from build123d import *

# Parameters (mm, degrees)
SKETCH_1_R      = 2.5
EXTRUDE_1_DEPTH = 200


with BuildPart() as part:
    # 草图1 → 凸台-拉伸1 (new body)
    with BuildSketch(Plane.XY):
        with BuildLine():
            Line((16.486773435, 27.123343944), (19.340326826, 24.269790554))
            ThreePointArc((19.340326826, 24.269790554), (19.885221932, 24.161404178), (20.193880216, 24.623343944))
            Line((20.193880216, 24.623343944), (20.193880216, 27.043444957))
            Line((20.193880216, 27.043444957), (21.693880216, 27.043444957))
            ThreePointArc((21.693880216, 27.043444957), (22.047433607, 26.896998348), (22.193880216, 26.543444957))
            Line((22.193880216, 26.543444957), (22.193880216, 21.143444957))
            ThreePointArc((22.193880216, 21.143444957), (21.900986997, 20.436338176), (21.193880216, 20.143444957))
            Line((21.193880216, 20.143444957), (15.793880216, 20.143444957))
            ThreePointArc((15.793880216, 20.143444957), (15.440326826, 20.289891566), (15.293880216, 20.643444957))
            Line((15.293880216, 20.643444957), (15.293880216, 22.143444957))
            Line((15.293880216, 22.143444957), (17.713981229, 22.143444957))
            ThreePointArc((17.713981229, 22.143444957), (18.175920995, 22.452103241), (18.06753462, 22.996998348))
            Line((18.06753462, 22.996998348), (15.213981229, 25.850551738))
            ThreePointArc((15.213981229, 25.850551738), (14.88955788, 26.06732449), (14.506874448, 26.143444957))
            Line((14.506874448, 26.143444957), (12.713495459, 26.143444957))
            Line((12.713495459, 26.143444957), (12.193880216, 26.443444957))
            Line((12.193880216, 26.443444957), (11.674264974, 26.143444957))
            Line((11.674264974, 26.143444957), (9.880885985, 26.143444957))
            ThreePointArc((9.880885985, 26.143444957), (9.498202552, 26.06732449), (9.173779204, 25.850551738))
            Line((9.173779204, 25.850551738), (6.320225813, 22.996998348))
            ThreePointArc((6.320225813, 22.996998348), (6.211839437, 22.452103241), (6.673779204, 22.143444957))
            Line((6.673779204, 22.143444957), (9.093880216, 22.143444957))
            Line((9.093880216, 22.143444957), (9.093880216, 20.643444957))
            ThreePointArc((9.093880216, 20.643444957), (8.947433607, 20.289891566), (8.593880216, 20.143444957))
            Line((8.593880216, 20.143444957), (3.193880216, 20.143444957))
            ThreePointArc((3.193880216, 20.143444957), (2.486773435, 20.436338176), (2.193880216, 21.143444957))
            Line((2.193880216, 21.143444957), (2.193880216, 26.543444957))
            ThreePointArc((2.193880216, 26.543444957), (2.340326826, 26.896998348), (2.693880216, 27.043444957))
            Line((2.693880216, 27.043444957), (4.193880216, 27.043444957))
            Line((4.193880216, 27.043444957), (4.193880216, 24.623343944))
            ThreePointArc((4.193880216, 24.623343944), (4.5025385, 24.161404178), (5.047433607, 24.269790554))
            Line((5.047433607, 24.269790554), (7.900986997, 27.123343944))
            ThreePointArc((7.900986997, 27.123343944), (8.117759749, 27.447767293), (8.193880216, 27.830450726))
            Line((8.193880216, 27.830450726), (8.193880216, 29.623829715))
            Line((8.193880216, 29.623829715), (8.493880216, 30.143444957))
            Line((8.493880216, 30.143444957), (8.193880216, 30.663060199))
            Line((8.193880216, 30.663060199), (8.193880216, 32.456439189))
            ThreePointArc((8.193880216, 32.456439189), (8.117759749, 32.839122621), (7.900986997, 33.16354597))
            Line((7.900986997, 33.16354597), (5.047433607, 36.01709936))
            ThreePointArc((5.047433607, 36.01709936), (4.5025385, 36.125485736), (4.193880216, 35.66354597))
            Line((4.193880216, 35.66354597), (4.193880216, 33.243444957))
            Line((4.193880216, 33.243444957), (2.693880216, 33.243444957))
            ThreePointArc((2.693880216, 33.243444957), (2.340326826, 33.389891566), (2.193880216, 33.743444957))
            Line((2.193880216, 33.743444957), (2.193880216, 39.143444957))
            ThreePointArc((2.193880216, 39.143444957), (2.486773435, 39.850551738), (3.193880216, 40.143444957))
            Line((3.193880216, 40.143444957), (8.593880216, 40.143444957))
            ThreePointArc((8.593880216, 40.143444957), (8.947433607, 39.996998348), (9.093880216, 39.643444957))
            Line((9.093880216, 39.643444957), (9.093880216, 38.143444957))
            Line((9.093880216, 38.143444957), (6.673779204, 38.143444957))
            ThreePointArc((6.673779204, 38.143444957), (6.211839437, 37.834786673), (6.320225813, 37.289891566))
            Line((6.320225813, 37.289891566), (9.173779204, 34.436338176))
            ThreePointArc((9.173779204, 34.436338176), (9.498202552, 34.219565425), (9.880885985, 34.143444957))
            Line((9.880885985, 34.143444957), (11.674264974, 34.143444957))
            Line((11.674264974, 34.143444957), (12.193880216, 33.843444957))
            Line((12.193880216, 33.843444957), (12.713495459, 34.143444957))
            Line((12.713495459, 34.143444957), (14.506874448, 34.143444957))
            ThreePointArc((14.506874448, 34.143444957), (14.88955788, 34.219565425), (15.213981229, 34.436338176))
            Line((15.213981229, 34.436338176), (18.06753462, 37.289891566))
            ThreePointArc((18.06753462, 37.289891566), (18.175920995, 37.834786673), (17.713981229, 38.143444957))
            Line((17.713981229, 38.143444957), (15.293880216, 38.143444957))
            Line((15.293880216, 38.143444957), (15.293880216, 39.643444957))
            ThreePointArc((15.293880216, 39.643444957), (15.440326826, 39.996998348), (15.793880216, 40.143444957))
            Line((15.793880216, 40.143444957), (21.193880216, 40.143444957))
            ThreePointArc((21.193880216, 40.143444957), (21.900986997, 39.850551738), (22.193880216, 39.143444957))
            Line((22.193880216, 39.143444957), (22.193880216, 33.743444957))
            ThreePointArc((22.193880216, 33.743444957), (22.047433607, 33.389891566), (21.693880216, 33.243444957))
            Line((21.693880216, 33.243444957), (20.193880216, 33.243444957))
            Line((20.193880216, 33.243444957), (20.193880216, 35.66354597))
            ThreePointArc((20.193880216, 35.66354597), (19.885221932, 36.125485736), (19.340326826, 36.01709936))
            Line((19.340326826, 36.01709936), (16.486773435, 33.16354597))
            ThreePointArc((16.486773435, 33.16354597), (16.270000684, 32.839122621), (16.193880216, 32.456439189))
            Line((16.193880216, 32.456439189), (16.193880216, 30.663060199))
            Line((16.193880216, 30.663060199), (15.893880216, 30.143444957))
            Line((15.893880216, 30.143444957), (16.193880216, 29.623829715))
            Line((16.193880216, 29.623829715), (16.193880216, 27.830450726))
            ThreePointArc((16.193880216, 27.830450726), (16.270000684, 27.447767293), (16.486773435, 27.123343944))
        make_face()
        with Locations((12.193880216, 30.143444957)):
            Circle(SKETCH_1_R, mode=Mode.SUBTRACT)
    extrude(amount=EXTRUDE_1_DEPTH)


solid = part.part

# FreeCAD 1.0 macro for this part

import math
import FreeCAD as App
import Part
import Sketcher
from FreeCAD import Vector
Q = App.Units.Quantity

doc = App.newDocument("Part")
params = doc.addObject("Spreadsheet::Sheet", "Params")
for row, (alias, value) in enumerate([
    ("sketch1_diameter", "5 mm"),
    ("sketch1_radius", "1 mm"),
    ("sketch1_radius2", "0.5 mm"),
    ("sketch1_width", "1.5 mm"),
    ("sketch1_width2", "5.4 mm"),
    ("pad1_length", "200 mm"),
], start=1):
    params.set(f"A{row}", alias)
    params.set(f"B{row}", "=" + value)
    params.setAlias(f"B{row}", alias)

body = doc.addObject("PartDesign::Body", "Body")

# Sketch on XY plane
sketch1 = body.newObject("Sketcher::SketchObject", "Sketch")
sketch1.AttachmentSupport = (doc.getObject("XY_Plane"), [""])
sketch1.MapMode = "FlatFace"
sketch1.addGeometry([
    Part.LineSegment(Vector(19.34, 24.27, 0), Vector(16.49, 27.12, 0)),  # 0
    Part.ArcOfCircle(Part.Circle(Vector(17.19, 27.83, 0), Vector(0, 0, 1), 1), math.radians(-180), math.radians(-135)),  # 1
    Part.LineSegment(Vector(16.19, 27.83, 0), Vector(16.19, 29.62, 0)),  # 2
    Part.LineSegment(Vector(16.19, 29.62, 0), Vector(15.89, 30.14, 0)),  # 3
    Part.LineSegment(Vector(15.89, 30.14, 0), Vector(16.19, 30.66, 0)),  # 4
    Part.LineSegment(Vector(16.19, 30.66, 0), Vector(16.19, 32.46, 0)),  # 5
    Part.ArcOfCircle(Part.Circle(Vector(17.19, 32.46, 0), Vector(0, 0, 1), 1), math.radians(135), math.radians(180)),  # 6
    Part.LineSegment(Vector(16.49, 33.16, 0), Vector(19.34, 36.02, 0)),  # 7
    Part.ArcOfCircle(Part.Circle(Vector(19.69, 35.66, 0), Vector(0, 0, 1), 0.5), math.radians(0), math.radians(135)),  # 8
    Part.LineSegment(Vector(20.19, 35.66, 0), Vector(20.19, 33.24, 0)),  # 9
    Part.LineSegment(Vector(20.19, 33.24, 0), Vector(21.69, 33.24, 0)),  # 10
    Part.ArcOfCircle(Part.Circle(Vector(21.69, 33.74, 0), Vector(0, 0, 1), 0.5), math.radians(-90), math.radians(0)),  # 11
    Part.LineSegment(Vector(22.19, 33.74, 0), Vector(22.19, 39.14, 0)),  # 12
    Part.ArcOfCircle(Part.Circle(Vector(21.19, 39.14, 0), Vector(0, 0, 1), 1), math.radians(0), math.radians(90)),  # 13
    Part.LineSegment(Vector(21.19, 40.14, 0), Vector(15.79, 40.14, 0)),  # 14
    Part.ArcOfCircle(Part.Circle(Vector(15.79, 39.64, 0), Vector(0, 0, 1), 0.5), math.radians(90), math.radians(180)),  # 15
    Part.LineSegment(Vector(15.29, 39.64, 0), Vector(15.29, 38.14, 0)),  # 16
    Part.LineSegment(Vector(15.29, 38.14, 0), Vector(17.71, 38.14, 0)),  # 17
    Part.ArcOfCircle(Part.Circle(Vector(17.71, 37.64, 0), Vector(0, 0, 1), 0.5), math.radians(-45), math.radians(90)),  # 18
    Part.LineSegment(Vector(18.07, 37.29, 0), Vector(15.21, 34.44, 0)),  # 19
    Part.ArcOfCircle(Part.Circle(Vector(14.51, 35.14, 0), Vector(0, 0, 1), 1), math.radians(-90), math.radians(-45)),  # 20
    Part.LineSegment(Vector(14.51, 34.14, 0), Vector(12.71, 34.14, 0)),  # 21
    Part.LineSegment(Vector(12.71, 34.14, 0), Vector(12.19, 33.84, 0)),  # 22
    Part.LineSegment(Vector(12.19, 33.84, 0), Vector(11.67, 34.14, 0)),  # 23
    Part.LineSegment(Vector(11.67, 34.14, 0), Vector(9.88, 34.14, 0)),  # 24
    Part.ArcOfCircle(Part.Circle(Vector(9.88, 35.14, 0), Vector(0, 0, 1), 1), math.radians(-135), math.radians(-90)),  # 25
    Part.LineSegment(Vector(9.17, 34.44, 0), Vector(6.32, 37.29, 0)),  # 26
    Part.ArcOfCircle(Part.Circle(Vector(6.67, 37.64, 0), Vector(0, 0, 1), 0.5), math.radians(90), math.radians(225)),  # 27
    Part.LineSegment(Vector(6.67, 38.14, 0), Vector(9.09, 38.14, 0)),  # 28
    Part.LineSegment(Vector(9.09, 38.14, 0), Vector(9.09, 39.64, 0)),  # 29
    Part.ArcOfCircle(Part.Circle(Vector(8.59, 39.64, 0), Vector(0, 0, 1), 0.5), math.radians(0), math.radians(90)),  # 30
    Part.LineSegment(Vector(8.59, 40.14, 0), Vector(3.19, 40.14, 0)),  # 31
    Part.ArcOfCircle(Part.Circle(Vector(3.19, 39.14, 0), Vector(0, 0, 1), 1), math.radians(90), math.radians(180)),  # 32
    Part.LineSegment(Vector(2.19, 39.14, 0), Vector(2.19, 33.74, 0)),  # 33
    Part.ArcOfCircle(Part.Circle(Vector(2.69, 33.74, 0), Vector(0, 0, 1), 0.5), math.radians(180), math.radians(270)),  # 34
    Part.LineSegment(Vector(2.69, 33.24, 0), Vector(4.19, 33.24, 0)),  # 35
    Part.LineSegment(Vector(4.19, 33.24, 0), Vector(4.19, 35.66, 0)),  # 36
    Part.ArcOfCircle(Part.Circle(Vector(4.69, 35.66, 0), Vector(0, 0, 1), 0.5), math.radians(45), math.radians(180)),  # 37
    Part.LineSegment(Vector(5.05, 36.02, 0), Vector(7.9, 33.16, 0)),  # 38
    Part.ArcOfCircle(Part.Circle(Vector(7.19, 32.46, 0), Vector(0, 0, 1), 1), math.radians(0), math.radians(45)),  # 39
    Part.LineSegment(Vector(8.19, 32.46, 0), Vector(8.19, 30.66, 0)),  # 40
    Part.LineSegment(Vector(8.19, 30.66, 0), Vector(8.49, 30.14, 0)),  # 41
    Part.LineSegment(Vector(8.49, 30.14, 0), Vector(8.19, 29.62, 0)),  # 42
    Part.LineSegment(Vector(8.19, 29.62, 0), Vector(8.19, 27.83, 0)),  # 43
    Part.ArcOfCircle(Part.Circle(Vector(7.19, 27.83, 0), Vector(0, 0, 1), 1), math.radians(-45), math.radians(0)),  # 44
    Part.LineSegment(Vector(7.9, 27.12, 0), Vector(5.05, 24.27, 0)),  # 45
    Part.ArcOfCircle(Part.Circle(Vector(4.69, 24.62, 0), Vector(0, 0, 1), 0.5), math.radians(180), math.radians(315)),  # 46
    Part.LineSegment(Vector(4.19, 24.62, 0), Vector(4.19, 27.04, 0)),  # 47
    Part.LineSegment(Vector(4.19, 27.04, 0), Vector(2.69, 27.04, 0)),  # 48
    Part.ArcOfCircle(Part.Circle(Vector(2.69, 26.54, 0), Vector(0, 0, 1), 0.5), math.radians(90), math.radians(180)),  # 49
    Part.LineSegment(Vector(2.19, 26.54, 0), Vector(2.19, 21.14, 0)),  # 50
    Part.ArcOfCircle(Part.Circle(Vector(3.19, 21.14, 0), Vector(0, 0, 1), 1), math.radians(-180), math.radians(-90)),  # 51
    Part.LineSegment(Vector(3.19, 20.14, 0), Vector(8.59, 20.14, 0)),  # 52
    Part.ArcOfCircle(Part.Circle(Vector(8.59, 20.64, 0), Vector(0, 0, 1), 0.5), math.radians(-90), math.radians(0)),  # 53
    Part.LineSegment(Vector(9.09, 20.64, 0), Vector(9.09, 22.14, 0)),  # 54
    Part.LineSegment(Vector(9.09, 22.14, 0), Vector(6.67, 22.14, 0)),  # 55
    Part.ArcOfCircle(Part.Circle(Vector(6.67, 22.64, 0), Vector(0, 0, 1), 0.5), math.radians(135), math.radians(270)),  # 56
    Part.LineSegment(Vector(6.32, 23, 0), Vector(9.17, 25.85, 0)),  # 57
    Part.ArcOfCircle(Part.Circle(Vector(9.88, 25.14, 0), Vector(0, 0, 1), 1), math.radians(90), math.radians(135)),  # 58
    Part.LineSegment(Vector(9.88, 26.14, 0), Vector(11.67, 26.14, 0)),  # 59
    Part.LineSegment(Vector(11.67, 26.14, 0), Vector(12.19, 26.44, 0)),  # 60
    Part.LineSegment(Vector(12.19, 26.44, 0), Vector(12.71, 26.14, 0)),  # 61
    Part.LineSegment(Vector(12.71, 26.14, 0), Vector(14.51, 26.14, 0)),  # 62
    Part.ArcOfCircle(Part.Circle(Vector(14.51, 25.14, 0), Vector(0, 0, 1), 1), math.radians(45), math.radians(90)),  # 63
    Part.LineSegment(Vector(15.21, 25.85, 0), Vector(18.07, 23, 0)),  # 64
    Part.ArcOfCircle(Part.Circle(Vector(17.71, 22.64, 0), Vector(0, 0, 1), 0.5), math.radians(-90), math.radians(45)),  # 65
    Part.LineSegment(Vector(17.71, 22.14, 0), Vector(15.29, 22.14, 0)),  # 66
    Part.LineSegment(Vector(15.29, 22.14, 0), Vector(15.29, 20.64, 0)),  # 67
    Part.ArcOfCircle(Part.Circle(Vector(15.79, 20.64, 0), Vector(0, 0, 1), 0.5), math.radians(180), math.radians(270)),  # 68
    Part.LineSegment(Vector(15.79, 20.14, 0), Vector(21.19, 20.14, 0)),  # 69
    Part.ArcOfCircle(Part.Circle(Vector(21.19, 21.14, 0), Vector(0, 0, 1), 1), math.radians(-90), math.radians(0)),  # 70
    Part.LineSegment(Vector(22.19, 21.14, 0), Vector(22.19, 26.54, 0)),  # 71
    Part.ArcOfCircle(Part.Circle(Vector(21.69, 26.54, 0), Vector(0, 0, 1), 0.5), math.radians(0), math.radians(90)),  # 72
    Part.LineSegment(Vector(21.69, 27.04, 0), Vector(20.19, 27.04, 0)),  # 73
    Part.LineSegment(Vector(20.19, 27.04, 0), Vector(20.19, 24.62, 0)),  # 74
    Part.ArcOfCircle(Part.Circle(Vector(19.69, 24.62, 0), Vector(0, 0, 1), 0.5), math.radians(-135), math.radians(0)),  # 75
    Part.Circle(Vector(12.19, 30.14, 0), Vector(0, 0, 1), 2.5),  # 76
], False)
sketch1.addConstraint([
    Sketcher.Constraint("Tangent", 0, 2, 1, 2),
    Sketcher.Constraint("Tangent", 1, 1, 2, 1),
    Sketcher.Constraint("Coincident", 2, 2, 3, 1),
    Sketcher.Constraint("Coincident", 3, 2, 4, 1),
    Sketcher.Constraint("Coincident", 4, 2, 5, 1),
    Sketcher.Constraint("Tangent", 5, 2, 6, 2),
    Sketcher.Constraint("Tangent", 6, 1, 7, 1),
    Sketcher.Constraint("Tangent", 7, 2, 8, 2),
    Sketcher.Constraint("Tangent", 8, 1, 9, 1),
    Sketcher.Constraint("Coincident", 9, 2, 10, 1),
    Sketcher.Constraint("Tangent", 10, 2, 11, 1),
    Sketcher.Constraint("Tangent", 11, 2, 12, 1),
    Sketcher.Constraint("Tangent", 12, 2, 13, 1),
    Sketcher.Constraint("Tangent", 13, 2, 14, 1),
    Sketcher.Constraint("Tangent", 14, 2, 15, 1),
    Sketcher.Constraint("Tangent", 15, 2, 16, 1),
    Sketcher.Constraint("Coincident", 16, 2, 17, 1),
    Sketcher.Constraint("Tangent", 17, 2, 18, 2),
    Sketcher.Constraint("Tangent", 18, 1, 19, 1),
    Sketcher.Constraint("Tangent", 19, 2, 20, 2),
    Sketcher.Constraint("Tangent", 20, 1, 21, 1),
    Sketcher.Constraint("Coincident", 21, 2, 22, 1),
    Sketcher.Constraint("Coincident", 22, 2, 23, 1),
    Sketcher.Constraint("Coincident", 23, 2, 24, 1),
    Sketcher.Constraint("Tangent", 24, 2, 25, 2),
    Sketcher.Constraint("Tangent", 25, 1, 26, 1),
    Sketcher.Constraint("Tangent", 26, 2, 27, 2),
    Sketcher.Constraint("Tangent", 27, 1, 28, 1),
    Sketcher.Constraint("Coincident", 28, 2, 29, 1),
    Sketcher.Constraint("Tangent", 29, 2, 30, 1),
    Sketcher.Constraint("Tangent", 30, 2, 31, 1),
    Sketcher.Constraint("Tangent", 31, 2, 32, 1),
    Sketcher.Constraint("Tangent", 32, 2, 33, 1),
    Sketcher.Constraint("Tangent", 33, 2, 34, 1),
    Sketcher.Constraint("Tangent", 34, 2, 35, 1),
    Sketcher.Constraint("Coincident", 35, 2, 36, 1),
    Sketcher.Constraint("Tangent", 36, 2, 37, 2),
    Sketcher.Constraint("Tangent", 37, 1, 38, 1),
    Sketcher.Constraint("Tangent", 38, 2, 39, 2),
    Sketcher.Constraint("Tangent", 39, 1, 40, 1),
    Sketcher.Constraint("Coincident", 40, 2, 41, 1),
    Sketcher.Constraint("Coincident", 41, 2, 42, 1),
    Sketcher.Constraint("Coincident", 42, 2, 43, 1),
    Sketcher.Constraint("Tangent", 43, 2, 44, 2),
    Sketcher.Constraint("Tangent", 44, 1, 45, 1),
    Sketcher.Constraint("Tangent", 45, 2, 46, 2),
    Sketcher.Constraint("Tangent", 46, 1, 47, 1),
    Sketcher.Constraint("Coincident", 47, 2, 48, 1),
    Sketcher.Constraint("Tangent", 48, 2, 49, 1),
    Sketcher.Constraint("Tangent", 49, 2, 50, 1),
    Sketcher.Constraint("Tangent", 50, 2, 51, 1),
    Sketcher.Constraint("Tangent", 51, 2, 52, 1),
    Sketcher.Constraint("Tangent", 52, 2, 53, 1),
    Sketcher.Constraint("Tangent", 53, 2, 54, 1),
    Sketcher.Constraint("Coincident", 54, 2, 55, 1),
    Sketcher.Constraint("Tangent", 55, 2, 56, 2),
    Sketcher.Constraint("Tangent", 56, 1, 57, 1),
    Sketcher.Constraint("Tangent", 57, 2, 58, 2),
    Sketcher.Constraint("Tangent", 58, 1, 59, 1),
    Sketcher.Constraint("Coincident", 59, 2, 60, 1),
    Sketcher.Constraint("Coincident", 60, 2, 61, 1),
    Sketcher.Constraint("Coincident", 61, 2, 62, 1),
    Sketcher.Constraint("Tangent", 62, 2, 63, 2),
    Sketcher.Constraint("Tangent", 63, 1, 64, 1),
    Sketcher.Constraint("Tangent", 64, 2, 65, 2),
    Sketcher.Constraint("Tangent", 65, 1, 66, 1),
    Sketcher.Constraint("Coincident", 66, 2, 67, 1),
    Sketcher.Constraint("Tangent", 67, 2, 68, 1),
    Sketcher.Constraint("Tangent", 68, 2, 69, 1),
    Sketcher.Constraint("Tangent", 69, 2, 70, 1),
    Sketcher.Constraint("Tangent", 70, 2, 71, 1),
    Sketcher.Constraint("Tangent", 71, 2, 72, 1),
    Sketcher.Constraint("Tangent", 72, 2, 73, 1),
    Sketcher.Constraint("Coincident", 73, 2, 74, 1),
    Sketcher.Constraint("Tangent", 74, 2, 75, 2),
    Sketcher.Constraint("Tangent", 75, 1, 0, 1),
    Sketcher.Constraint("Vertical", 2),
    Sketcher.Constraint("Vertical", 5),
    Sketcher.Constraint("Vertical", 9),
    Sketcher.Constraint("Horizontal", 10),
    Sketcher.Constraint("Vertical", 12),
    Sketcher.Constraint("Horizontal", 14),
    Sketcher.Constraint("Vertical", 16),
    Sketcher.Constraint("Horizontal", 17),
    Sketcher.Constraint("Horizontal", 21),
    Sketcher.Constraint("Horizontal", 24),
    Sketcher.Constraint("Horizontal", 28),
    Sketcher.Constraint("Vertical", 29),
    Sketcher.Constraint("Horizontal", 31),
    Sketcher.Constraint("Vertical", 33),
    Sketcher.Constraint("Horizontal", 35),
    Sketcher.Constraint("Vertical", 36),
    Sketcher.Constraint("Vertical", 40),
    Sketcher.Constraint("Vertical", 43),
    Sketcher.Constraint("Vertical", 47),
    Sketcher.Constraint("Horizontal", 48),
    Sketcher.Constraint("Vertical", 50),
    Sketcher.Constraint("Horizontal", 52),
    Sketcher.Constraint("Vertical", 54),
    Sketcher.Constraint("Horizontal", 55),
    Sketcher.Constraint("Horizontal", 59),
    Sketcher.Constraint("Horizontal", 62),
    Sketcher.Constraint("Horizontal", 66),
    Sketcher.Constraint("Vertical", 67),
    Sketcher.Constraint("Horizontal", 69),
    Sketcher.Constraint("Vertical", 71),
    Sketcher.Constraint("Horizontal", 73),
    Sketcher.Constraint("Vertical", 74),
    Sketcher.Constraint("Equal", 1, 6),
    Sketcher.Constraint("Equal", 8, 11),
    Sketcher.Constraint("Equal", 6, 13),
    Sketcher.Constraint("Equal", 11, 15),
    Sketcher.Constraint("Equal", 15, 18),
    Sketcher.Constraint("Equal", 13, 20),
    Sketcher.Constraint("Equal", 20, 25),
    Sketcher.Constraint("Equal", 18, 27),
    Sketcher.Constraint("Equal", 27, 30),
    Sketcher.Constraint("Equal", 25, 32),
    Sketcher.Constraint("Equal", 30, 34),
    Sketcher.Constraint("Equal", 34, 37),
    Sketcher.Constraint("Equal", 32, 39),
    Sketcher.Constraint("Equal", 39, 44),
    Sketcher.Constraint("Equal", 37, 46),
    Sketcher.Constraint("Equal", 46, 49),
    Sketcher.Constraint("Equal", 44, 51),
    Sketcher.Constraint("Equal", 49, 53),
    Sketcher.Constraint("Equal", 53, 56),
    Sketcher.Constraint("Equal", 51, 58),
    Sketcher.Constraint("Equal", 58, 63),
    Sketcher.Constraint("Equal", 56, 65),
    Sketcher.Constraint("Equal", 65, 68),
    Sketcher.Constraint("Equal", 63, 70),
    Sketcher.Constraint("Equal", 68, 72),
    Sketcher.Constraint("Equal", 72, 75),
    Sketcher.Constraint("Perpendicular", 0, 7),
    Sketcher.Constraint("Parallel", 7, 19),
    Sketcher.Constraint("Perpendicular", 3, 22),
    Sketcher.Constraint("Perpendicular", 4, 23),
    Sketcher.Constraint("Perpendicular", 19, 26),
    Sketcher.Constraint("Parallel", 26, 38),
    Sketcher.Constraint("Perpendicular", 22, 41),
    Sketcher.Constraint("Perpendicular", 23, 42),
    Sketcher.Constraint("Perpendicular", 38, 45),
    Sketcher.Constraint("Parallel", 45, 57),
    Sketcher.Constraint("Perpendicular", 41, 60),
    Sketcher.Constraint("Perpendicular", 42, 61),
    Sketcher.Constraint("Perpendicular", 57, 64),
    Sketcher.Constraint("Horizontal", 20, 3, 25, 3),
    Sketcher.Constraint("Horizontal", 18, 3, 27, 3),
    Sketcher.Constraint("Horizontal", 15, 3, 30, 3),
    Sketcher.Constraint("Horizontal", 11, 3, 34, 3),
    Sketcher.Constraint("Horizontal", 8, 3, 37, 3),
    Sketcher.Constraint("Horizontal", 6, 3, 39, 3),
    Sketcher.Constraint("Horizontal", 1, 3, 44, 3),
    Sketcher.Constraint("Horizontal", 58, 3, 63, 3),
    Sketcher.Constraint("Horizontal", 56, 3, 65, 3),
    Sketcher.Constraint("Horizontal", 53, 3, 68, 3),
    Sketcher.Constraint("Horizontal", 49, 3, 72, 3),
    Sketcher.Constraint("Horizontal", 46, 3, 75, 3),
    Sketcher.Constraint("Horizontal", 76, 3, 3, 2),
    Sketcher.Constraint("Horizontal", 19, 2, 25, 1),
    Sketcher.Constraint("Horizontal", 4, 2, 40, 2),
    Sketcher.Constraint("Horizontal", 3, 2, 41, 2),
    Sketcher.Constraint("Horizontal", 2, 2, 42, 2),
    Sketcher.Constraint("Vertical", 1, 3, 6, 3),
    Sketcher.Constraint("Vertical", 39, 3, 44, 3),
    Sketcher.Constraint("Vertical", 37, 3, 46, 3),
    Sketcher.Constraint("Vertical", 34, 3, 49, 3),
    Sketcher.Constraint("Vertical", 30, 3, 53, 3),
    Sketcher.Constraint("Vertical", 27, 3, 56, 3),
    Sketcher.Constraint("Vertical", 25, 3, 58, 3),
    Sketcher.Constraint("Vertical", 20, 3, 63, 3),
    Sketcher.Constraint("Vertical", 15, 3, 68, 3),
    Sketcher.Constraint("Vertical", 13, 3, 70, 3),
    Sketcher.Constraint("Vertical", 76, 3, 22, 2),
    Sketcher.Constraint("Vertical", 23, 2, 59, 2),
    Sketcher.Constraint("Vertical", 22, 2, 60, 2),
    Sketcher.Constraint("Equal", 21, 24),
    Sketcher.Constraint("Equal", 17, 28),
    Sketcher.Constraint("Equal", 14, 31),
    Sketcher.Constraint("Equal", 10, 35),
    Sketcher.Constraint("Equal", 62, 2),
    Sketcher.Constraint("Equal", 2, 5),
    Sketcher.Constraint("Equal", 66, 9),
    Sketcher.Constraint("Equal", 69, 12),
    Sketcher.Constraint("Equal", 73, 16),
    Sketcher.Constraint("Equal", 36, 47),
    Sketcher.Constraint("Equal", 33, 50),
    Sketcher.Constraint("Equal", 29, 54),
    Sketcher.Constraint("Equal", 7, 19),
    Sketcher.Constraint("Equal", 4, 22),
    Sketcher.Constraint("Diameter", 76, Q("5 mm")),
    Sketcher.Constraint("Radius", 1, Q("1 mm")),
    Sketcher.Constraint("Radius", 8, Q("0.5 mm")),
    Sketcher.Constraint("Angle", 3, Q("120 deg")),
    Sketcher.Constraint("DistanceX", 10, 1, 10, 2, Q("1.5 mm")),
    Sketcher.Constraint("DistanceX", 14, 2, 14, 1, Q("5.4 mm")),
    Sketcher.Constraint("Distance", 3, Q("0.6 mm")),
    Sketcher.Constraint("DistanceX", 17, 1, 17, 2, Q("2.420101 mm")),
    Sketcher.Constraint("DistanceY", -1, 1, 56, 1, Q("22.996998 mm")),
    Sketcher.Constraint("DistanceX", 21, 2, 21, 1, Q("1.793379 mm")),
    Sketcher.Constraint("DistanceY", -1, 1, 7, 2, Q("36.017099 mm")),
    Sketcher.Constraint("DistanceX", -1, 1, 1, 3, Q("17.19388 mm")),
])
sketch1.setExpression("Constraints[191]", "Params.sketch1_diameter")
sketch1.setExpression("Constraints[192]", "Params.sketch1_radius")
sketch1.setExpression("Constraints[193]", "Params.sketch1_radius2")
sketch1.setExpression("Constraints[195]", "Params.sketch1_width")
sketch1.setExpression("Constraints[196]", "Params.sketch1_width2")
pad1 = body.newObject("PartDesign::Pad", "Pad")
pad1.Profile = sketch1
pad1.setExpression("Length", "Params.pad1_length")

doc.recompute()
